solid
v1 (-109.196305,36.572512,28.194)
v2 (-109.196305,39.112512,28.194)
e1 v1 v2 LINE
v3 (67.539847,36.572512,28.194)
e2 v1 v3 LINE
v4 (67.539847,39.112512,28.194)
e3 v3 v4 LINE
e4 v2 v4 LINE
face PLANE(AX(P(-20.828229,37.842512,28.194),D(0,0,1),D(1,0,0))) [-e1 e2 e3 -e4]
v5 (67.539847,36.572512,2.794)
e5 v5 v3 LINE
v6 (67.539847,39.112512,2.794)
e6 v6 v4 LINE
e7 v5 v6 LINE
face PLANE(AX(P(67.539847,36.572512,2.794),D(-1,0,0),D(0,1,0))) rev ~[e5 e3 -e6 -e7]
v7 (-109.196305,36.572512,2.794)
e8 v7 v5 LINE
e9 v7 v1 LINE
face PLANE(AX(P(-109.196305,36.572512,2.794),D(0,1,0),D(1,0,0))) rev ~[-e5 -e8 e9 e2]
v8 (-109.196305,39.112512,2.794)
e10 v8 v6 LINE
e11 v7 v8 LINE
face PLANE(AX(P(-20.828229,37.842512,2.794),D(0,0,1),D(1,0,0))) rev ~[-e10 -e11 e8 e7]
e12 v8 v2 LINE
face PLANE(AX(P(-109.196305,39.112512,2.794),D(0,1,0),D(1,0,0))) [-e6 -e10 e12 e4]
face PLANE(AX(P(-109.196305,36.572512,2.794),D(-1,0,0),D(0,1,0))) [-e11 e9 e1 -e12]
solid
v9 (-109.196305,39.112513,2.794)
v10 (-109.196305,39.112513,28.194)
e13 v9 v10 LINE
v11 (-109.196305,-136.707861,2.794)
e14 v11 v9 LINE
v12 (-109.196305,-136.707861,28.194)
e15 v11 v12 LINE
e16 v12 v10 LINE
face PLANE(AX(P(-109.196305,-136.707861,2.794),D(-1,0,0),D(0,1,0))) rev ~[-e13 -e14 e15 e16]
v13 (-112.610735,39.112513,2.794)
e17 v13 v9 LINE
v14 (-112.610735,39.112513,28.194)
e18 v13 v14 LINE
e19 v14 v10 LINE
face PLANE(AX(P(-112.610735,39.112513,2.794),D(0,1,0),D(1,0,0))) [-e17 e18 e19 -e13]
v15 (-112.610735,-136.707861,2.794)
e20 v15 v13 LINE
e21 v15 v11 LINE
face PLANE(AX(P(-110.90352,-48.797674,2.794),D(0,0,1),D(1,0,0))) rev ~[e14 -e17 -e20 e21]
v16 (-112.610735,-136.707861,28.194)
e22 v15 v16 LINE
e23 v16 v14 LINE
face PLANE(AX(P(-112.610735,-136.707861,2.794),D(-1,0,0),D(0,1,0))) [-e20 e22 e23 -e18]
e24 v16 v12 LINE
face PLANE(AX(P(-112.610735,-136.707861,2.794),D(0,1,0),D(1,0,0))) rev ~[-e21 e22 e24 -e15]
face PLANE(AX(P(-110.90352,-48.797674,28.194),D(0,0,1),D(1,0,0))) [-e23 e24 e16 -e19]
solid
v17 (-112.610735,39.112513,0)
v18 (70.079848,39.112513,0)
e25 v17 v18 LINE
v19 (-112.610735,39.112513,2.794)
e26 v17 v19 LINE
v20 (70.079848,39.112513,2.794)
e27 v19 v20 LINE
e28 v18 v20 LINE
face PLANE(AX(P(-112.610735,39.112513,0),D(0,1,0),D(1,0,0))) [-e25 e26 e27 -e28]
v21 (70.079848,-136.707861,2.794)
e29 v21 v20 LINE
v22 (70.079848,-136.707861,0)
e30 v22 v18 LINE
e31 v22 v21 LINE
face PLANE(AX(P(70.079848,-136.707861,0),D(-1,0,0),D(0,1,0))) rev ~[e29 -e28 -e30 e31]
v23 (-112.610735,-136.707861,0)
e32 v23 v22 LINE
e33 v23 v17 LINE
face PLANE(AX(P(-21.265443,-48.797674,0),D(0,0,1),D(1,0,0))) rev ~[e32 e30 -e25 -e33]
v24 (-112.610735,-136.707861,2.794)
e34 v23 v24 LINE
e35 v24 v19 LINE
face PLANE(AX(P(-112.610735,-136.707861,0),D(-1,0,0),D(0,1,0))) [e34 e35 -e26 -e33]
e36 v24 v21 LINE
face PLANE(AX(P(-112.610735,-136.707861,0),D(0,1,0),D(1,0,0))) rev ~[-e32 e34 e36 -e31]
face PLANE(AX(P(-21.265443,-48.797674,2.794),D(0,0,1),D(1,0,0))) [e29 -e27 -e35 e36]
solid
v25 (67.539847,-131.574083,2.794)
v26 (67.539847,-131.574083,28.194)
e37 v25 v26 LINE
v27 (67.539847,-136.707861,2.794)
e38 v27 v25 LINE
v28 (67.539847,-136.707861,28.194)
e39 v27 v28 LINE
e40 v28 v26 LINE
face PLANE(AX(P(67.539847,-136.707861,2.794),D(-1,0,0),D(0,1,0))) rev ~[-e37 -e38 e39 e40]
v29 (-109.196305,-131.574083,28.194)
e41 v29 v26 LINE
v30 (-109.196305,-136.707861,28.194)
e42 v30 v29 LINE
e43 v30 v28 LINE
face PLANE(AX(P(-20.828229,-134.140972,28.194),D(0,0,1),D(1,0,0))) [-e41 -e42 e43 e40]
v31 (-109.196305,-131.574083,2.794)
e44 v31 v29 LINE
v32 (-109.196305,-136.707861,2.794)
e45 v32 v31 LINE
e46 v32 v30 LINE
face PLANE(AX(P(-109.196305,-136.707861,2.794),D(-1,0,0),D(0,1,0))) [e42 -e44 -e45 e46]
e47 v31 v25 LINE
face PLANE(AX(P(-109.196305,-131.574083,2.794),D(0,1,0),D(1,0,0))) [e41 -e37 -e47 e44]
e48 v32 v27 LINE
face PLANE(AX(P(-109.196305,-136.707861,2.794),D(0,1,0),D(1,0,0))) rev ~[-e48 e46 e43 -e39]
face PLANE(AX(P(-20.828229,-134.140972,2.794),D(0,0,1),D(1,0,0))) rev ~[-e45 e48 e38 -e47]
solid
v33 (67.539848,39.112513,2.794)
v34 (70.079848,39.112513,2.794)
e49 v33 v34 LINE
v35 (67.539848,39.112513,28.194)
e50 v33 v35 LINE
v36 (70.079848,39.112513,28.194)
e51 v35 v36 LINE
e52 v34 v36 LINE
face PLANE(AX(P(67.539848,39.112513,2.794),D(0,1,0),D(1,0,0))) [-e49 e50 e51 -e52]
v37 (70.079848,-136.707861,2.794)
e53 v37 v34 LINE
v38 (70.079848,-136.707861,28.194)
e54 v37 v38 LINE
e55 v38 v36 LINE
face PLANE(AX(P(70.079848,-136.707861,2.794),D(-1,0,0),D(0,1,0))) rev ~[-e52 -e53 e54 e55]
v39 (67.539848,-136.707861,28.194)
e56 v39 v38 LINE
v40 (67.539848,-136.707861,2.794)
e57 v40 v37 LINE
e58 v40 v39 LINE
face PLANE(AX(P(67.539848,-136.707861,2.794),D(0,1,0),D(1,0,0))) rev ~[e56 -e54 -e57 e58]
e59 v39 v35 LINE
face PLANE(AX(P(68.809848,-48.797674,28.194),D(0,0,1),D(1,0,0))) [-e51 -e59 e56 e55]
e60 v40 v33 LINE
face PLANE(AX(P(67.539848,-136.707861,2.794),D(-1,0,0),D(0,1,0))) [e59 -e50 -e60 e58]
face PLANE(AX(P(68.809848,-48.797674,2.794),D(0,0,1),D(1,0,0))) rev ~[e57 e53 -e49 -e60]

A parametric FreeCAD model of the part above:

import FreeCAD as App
import Part
import Sketcher

V = App.Vector
Q = App.Units.Quantity


def add_polygon(sketch, points):
    """Adds a closed chain of lines whose ends are joined by coincident constraints."""
    first, n = sketch.GeometryCount, len(points)
    for a, b in zip(points, points[1:] + points[:1]):
        sketch.addGeometry(Part.LineSegment(App.Vector(*a, 0), App.Vector(*b, 0)), False)
    for i in range(n):
        sketch.addConstraint(Sketcher.Constraint("Coincident", first + i, 2, first + (i + 1) % n, 1))

doc = App.newDocument("Part")
body = doc.addObject("PartDesign::Body", "Body")

# Sketch on XY plane
sketch1 = body.newObject("Sketcher::SketchObject", "Sketch")
sketch1.AttachmentSupport = (doc.getObject("XY_Plane"), [""])
sketch1.MapMode = "FlatFace"
add_polygon(sketch1, [(-112.610735, 39.112513), (-112.610735, -136.707861), (70.079848, -136.707861), (70.079848, 39.112513)])  # lines 0-3
sketch1.addConstraint([
    Sketcher.Constraint("Vertical", 0),
    Sketcher.Constraint("Horizontal", 1),
    Sketcher.Constraint("Vertical", 2),
    Sketcher.Constraint("Horizontal", 3),
    Sketcher.Constraint("DistanceX", 1, 1, 1, 2, Q("182.690583 mm")),
    Sketcher.Constraint("DistanceY", 0, 2, 0, 1, Q("175.820373 mm")),
    Sketcher.Constraint("DistanceY", 0, 2, -1, 1, Q("136.707861 mm")),
    Sketcher.Constraint("DistanceX", -1, 1, 1, 2, Q("70.079848 mm")),
])
pad1 = body.newObject("PartDesign::Pad", "Pad")
pad1.Profile = sketch1
pad1.Length = Q("0.11 in")
body2 = doc.addObject("PartDesign::Body", "Body001")

# Sketch on XY plane
sketch2 = body2.newObject("Sketcher::SketchObject", "Sketch001")
sketch2.AttachmentSupport = (doc.getObject("XY_Plane001"), [""])
sketch2.MapMode = "FlatFace"
sketch2.AttachmentOffset = App.Placement(V(0, 0, 0.11 * 25.4), App.Rotation())
add_polygon(sketch2, [(67.539848, 39.112513), (67.539848, -136.707861), (70.079848, -136.707861), (70.079848, 39.112513)])  # lines 0-3
sketch2.addConstraint([
    Sketcher.Constraint("Vertical", 0),
    Sketcher.Constraint("Horizontal", 1),
    Sketcher.Constraint("Vertical", 2),
    Sketcher.Constraint("Horizontal", 3),
    Sketcher.Constraint("DistanceX", 1, 1, 1, 2, Q("0.1 in")),
    Sketcher.Constraint("DistanceY", 0, 2, 0, 1, Q("175.820373 mm")),
    Sketcher.Constraint("DistanceX", -1, 1, 0, 2, Q("67.539848 mm")),
    Sketcher.Constraint("DistanceY", 0, 2, -1, 1, Q("136.707861 mm")),
])
pad2 = body2.newObject("PartDesign::Pad", "Pad001")
pad2.Profile = sketch2
pad2.Length = Q("1 in")
body3 = doc.addObject("PartDesign::Body", "Body002")

# Sketch on XY plane
sketch3 = body3.newObject("Sketcher::SketchObject", "Sketch002")
sketch3.AttachmentSupport = (doc.getObject("XY_Plane002"), [""])
sketch3.MapMode = "FlatFace"
sketch3.AttachmentOffset = App.Placement(V(0, 0, 0.11 * 25.4), App.Rotation())
add_polygon(sketch3, [(-112.610735, 39.112513), (-112.610735, -136.707861), (-109.196305, -136.707861), (-109.196305, 39.112513)])  # lines 0-3
sketch3.addConstraint([
    Sketcher.Constraint("Vertical", 0),
    Sketcher.Constraint("Horizontal", 1),
    Sketcher.Constraint("Vertical", 2),
    Sketcher.Constraint("Horizontal", 3),
    Sketcher.Constraint("DistanceX", 1, 1, 1, 2, Q("3.41443 mm")),
    Sketcher.Constraint("DistanceY", 0, 2, 0, 1, Q("175.820373 mm")),
    Sketcher.Constraint("DistanceY", 0, 2, -1, 1, Q("136.707861 mm")),
    Sketcher.Constraint("DistanceX", 0, 2, -1, 1, Q("112.610735 mm")),
])
pad3 = body3.newObject("PartDesign::Pad", "Pad002")
pad3.Profile = sketch3
pad3.Length = Q("1 in")
body4 = doc.addObject("PartDesign::Body", "Body003")

# Sketch on XY plane
sketch4 = body4.newObject("Sketcher::SketchObject", "Sketch003")
sketch4.AttachmentSupport = (doc.getObject("XY_Plane003"), [""])
sketch4.MapMode = "FlatFace"
sketch4.AttachmentOffset = App.Placement(V(0, 0, 0.11 * 25.4), App.Rotation())
add_polygon(sketch4, [(-109.196305, -131.574083), (-109.196305, -136.707861), (67.539847, -136.707861), (67.539847, -131.574083)])  # lines 0-3
sketch4.addConstraint([
    Sketcher.Constraint("Vertical", 0),
    Sketcher.Constraint("Horizontal", 1),
    Sketcher.Constraint("Vertical", 2),
    Sketcher.Constraint("Horizontal", 3),
    Sketcher.Constraint("DistanceY", 0, 2, 0, 1, Q("5.133778 mm")),
    Sketcher.Constraint("DistanceX", 1, 1, 1, 2, Q("176.736153 mm")),
    Sketcher.Constraint("DistanceY", 0, 2, -1, 1, Q("136.707861 mm")),
    Sketcher.Constraint("DistanceX", 0, 2, -1, 1, Q("109.196305 mm")),
])
pad4 = body4.newObject("PartDesign::Pad", "Pad003")
pad4.Profile = sketch4
pad4.Length = Q("1 in")
body5 = doc.addObject("PartDesign::Body", "Body004")

# Sketch on XY plane
sketch5 = body5.newObject("Sketcher::SketchObject", "Sketch004")
sketch5.AttachmentSupport = (doc.getObject("XY_Plane004"), [""])
sketch5.MapMode = "FlatFace"
sketch5.AttachmentOffset = App.Placement(V(0, 0, 0.11 * 25.4), App.Rotation())
add_polygon(sketch5, [(-109.196305, 39.112512), (-109.196305, 36.572512), (67.539847, 36.572512), (67.539847, 39.112512)])  # lines 0-3
sketch5.addConstraint([
    Sketcher.Constraint("Vertical", 0),
    Sketcher.Constraint("Horizontal", 1),
    Sketcher.Constraint("Vertical", 2),
    Sketcher.Constraint("Horizontal", 3),
    Sketcher.Constraint("DistanceY", 0, 2, 0, 1, Q("0.1 in")),
    Sketcher.Constraint("DistanceX", 1, 1, 1, 2, Q("176.736153 mm")),
    Sketcher.Constraint("DistanceX", 0, 2, -1, 1, Q("109.196305 mm")),
    Sketcher.Constraint("DistanceY", -1, 1, 0, 2, Q("36.572512 mm")),
])
pad5 = body5.newObject("PartDesign::Pad", "Pad004")
pad5.Profile = sketch5
pad5.Length = Q("1 in")

doc.recompute()
